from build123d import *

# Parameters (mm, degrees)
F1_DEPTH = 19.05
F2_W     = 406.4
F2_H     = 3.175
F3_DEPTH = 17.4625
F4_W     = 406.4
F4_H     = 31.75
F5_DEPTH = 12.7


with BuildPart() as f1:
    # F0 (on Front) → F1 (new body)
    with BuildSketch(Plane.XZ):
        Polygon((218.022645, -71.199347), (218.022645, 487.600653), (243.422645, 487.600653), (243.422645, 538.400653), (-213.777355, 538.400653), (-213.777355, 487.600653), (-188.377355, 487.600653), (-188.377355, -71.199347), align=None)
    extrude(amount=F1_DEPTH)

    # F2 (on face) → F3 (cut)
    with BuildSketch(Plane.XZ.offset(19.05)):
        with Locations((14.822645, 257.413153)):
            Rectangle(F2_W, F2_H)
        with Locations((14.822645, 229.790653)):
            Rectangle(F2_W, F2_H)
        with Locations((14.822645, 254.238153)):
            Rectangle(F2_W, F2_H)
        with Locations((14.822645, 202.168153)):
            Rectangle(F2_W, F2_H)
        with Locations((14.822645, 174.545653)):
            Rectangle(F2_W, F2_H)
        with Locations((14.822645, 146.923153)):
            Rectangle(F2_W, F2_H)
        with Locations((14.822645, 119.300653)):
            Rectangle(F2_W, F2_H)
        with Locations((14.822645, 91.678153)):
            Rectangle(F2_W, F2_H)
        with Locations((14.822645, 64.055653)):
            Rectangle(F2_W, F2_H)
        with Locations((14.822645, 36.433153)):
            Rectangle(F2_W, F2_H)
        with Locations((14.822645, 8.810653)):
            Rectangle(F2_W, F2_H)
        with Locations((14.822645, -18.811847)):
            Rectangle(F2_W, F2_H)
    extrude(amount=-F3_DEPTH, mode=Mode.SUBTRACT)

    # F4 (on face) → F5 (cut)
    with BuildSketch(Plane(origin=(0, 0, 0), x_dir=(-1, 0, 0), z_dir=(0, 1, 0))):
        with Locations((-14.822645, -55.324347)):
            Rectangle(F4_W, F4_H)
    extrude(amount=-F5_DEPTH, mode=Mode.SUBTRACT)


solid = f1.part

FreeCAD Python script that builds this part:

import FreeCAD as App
import Part
import Sketcher
Q = App.Units.Quantity

doc = App.newDocument("Part")
body = doc.addObject("PartDesign::Body", "Body")

# Sketch on XZ plane
sketch1 = doc.addObject("Sketcher::SketchObject", "Sketch")
body.addObject(sketch1)
sketch1.AttachmentSupport = (doc.XZ_Plane, [""])
sketch1.MapMode = "FlatFace"
sketch1.addGeometry([
    Part.LineSegment(App.Vector(218, -71, 0), App.Vector(218, 488, 0)),  # 0
    Part.LineSegment(App.Vector(218, 488, 0), App.Vector(243, 488, 0)),  # 1
    Part.LineSegment(App.Vector(243, 488, 0), App.Vector(243, 538, 0)),  # 2
    Part.LineSegment(App.Vector(243, 538, 0), App.Vector(-214, 538, 0)),  # 3
    Part.LineSegment(App.Vector(-214, 538, 0), App.Vector(-214, 488, 0)),  # 4
    Part.LineSegment(App.Vector(-214, 488, 0), App.Vector(-188, 488, 0)),  # 5
    Part.LineSegment(App.Vector(-188, 488, 0), App.Vector(-188, -71, 0)),  # 6
    Part.LineSegment(App.Vector(-188, -71, 0), App.Vector(218, -71, 0)),  # 7
], False)
sketch1.addConstraint([
    Sketcher.Constraint("Coincident", 0, 2, 1, 1),
    Sketcher.Constraint("Coincident", 1, 2, 2, 1),
    Sketcher.Constraint("Coincident", 2, 2, 3, 1),
    Sketcher.Constraint("Coincident", 3, 2, 4, 1),
    Sketcher.Constraint("Coincident", 4, 2, 5, 1),
    Sketcher.Constraint("Coincident", 5, 2, 6, 1),
    Sketcher.Constraint("Coincident", 6, 2, 7, 1),
    Sketcher.Constraint("Coincident", 7, 2, 0, 1),
    Sketcher.Constraint("Vertical", 0),
    Sketcher.Constraint("Horizontal", 1),
    Sketcher.Constraint("Vertical", 2),
    Sketcher.Constraint("Horizontal", 3),
    Sketcher.Constraint("Vertical", 4),
    Sketcher.Constraint("Horizontal", 5),
    Sketcher.Constraint("Vertical", 6),
    Sketcher.Constraint("Horizontal", 7),
    Sketcher.Constraint("Horizontal", 1, 2, 4, 2),
    Sketcher.Constraint("Equal", 1, 5),
    Sketcher.Constraint("DistanceX", 1, 1, 1, 2, Q("1 in")),
    Sketcher.Constraint("DistanceX", 3, 2, 3, 1, Q("18 in")),
    Sketcher.Constraint("DistanceY", 0, 1, 0, 2, Q("22 in")),
    Sketcher.Constraint("DistanceY", 2, 1, 2, 2, Q("2 in")),
    Sketcher.Constraint("DistanceX", -1, 1, 0, 2, Q("218.022645 mm")),
    Sketcher.Constraint("DistanceY", -1, 1, 0, 2, Q("487.600653 mm")),
])
pad1 = doc.addObject("PartDesign::Pad", "Pad")
body.addObject(pad1)
pad1.Profile = sketch1
pad1.Length = Q("0.75 in")

# Sketch on XZ plane
sketch2 = doc.addObject("Sketcher::SketchObject", "Sketch001")
body.addObject(sketch2)
sketch2.AttachmentSupport = (doc.XZ_Plane, [""])
sketch2.MapMode = "FlatFace"
sketch2.AttachmentOffset = App.Placement(App.Vector(0, 0, 0.75 * 25.4), App.Rotation())
sketch2.addGeometry([
    Part.LineSegment(App.Vector(-188.4, 259, 0), App.Vector(-188.4, 252.7, 0)),  # 0
    Part.LineSegment(App.Vector(-188.4, 252.7, 0), App.Vector(218, 252.7, 0)),  # 1
    Part.LineSegment(App.Vector(218, 252.7, 0), App.Vector(218, 259, 0)),  # 2
    Part.LineSegment(App.Vector(218, 259, 0), App.Vector(-188.4, 259, 0)),  # 3
    Part.LineSegment(App.Vector(-188.4, 231.4, 0), App.Vector(-188.4, 228.2, 0)),  # 4
    Part.LineSegment(App.Vector(-188.4, 228.2, 0), App.Vector(218, 228.2, 0)),  # 5
    Part.LineSegment(App.Vector(218, 228.2, 0), App.Vector(218, 231.4, 0)),  # 6
    Part.LineSegment(App.Vector(218, 231.4, 0), App.Vector(-188.4, 231.4, 0)),  # 7
    Part.LineSegment(App.Vector(-188.4, 203.8, 0), App.Vector(-188.4, 200.6, 0)),  # 8
    Part.LineSegment(App.Vector(-188.4, 200.6, 0), App.Vector(218, 200.6, 0)),  # 9
    Part.LineSegment(App.Vector(218, 200.6, 0), App.Vector(218, 203.8, 0)),  # 10
    Part.LineSegment(App.Vector(218, 203.8, 0), App.Vector(-188.4, 203.8, 0)),  # 11
    Part.LineSegment(App.Vector(-188.4, 176.1, 0), App.Vector(-188.4, 173, 0)),  # 12
    Part.LineSegment(App.Vector(-188.4, 173, 0), App.Vector(218, 173, 0)),  # 13
    Part.LineSegment(App.Vector(218, 173, 0), App.Vector(218, 176.1, 0)),  # 14
    Part.LineSegment(App.Vector(218, 176.1, 0), App.Vector(-188.4, 176.1, 0)),  # 15
    Part.LineSegment(App.Vector(-188.4, 148.5, 0), App.Vector(-188.4, 145.3, 0)),  # 16
    Part.LineSegment(App.Vector(-188.4, 145.3, 0), App.Vector(218, 145.3, 0)),  # 17
    Part.LineSegment(App.Vector(218, 145.3, 0), App.Vector(218, 148.5, 0)),  # 18
    Part.LineSegment(App.Vector(218, 148.5, 0), App.Vector(-188.4, 148.5, 0)),  # 19
    Part.LineSegment(App.Vector(-188.4, 120.9, 0), App.Vector(-188.4, 117.7, 0)),  # 20
    Part.LineSegment(App.Vector(-188.4, 117.7, 0), App.Vector(218, 117.7, 0)),  # 21
    Part.LineSegment(App.Vector(218, 117.7, 0), App.Vector(218, 120.9, 0)),  # 22
    Part.LineSegment(App.Vector(218, 120.9, 0), App.Vector(-188.4, 120.9, 0)),  # 23
    Part.LineSegment(App.Vector(-188.4, 93.3, 0), App.Vector(-188.4, 90.1, 0)),  # 24
    Part.LineSegment(App.Vector(-188.4, 90.1, 0), App.Vector(218, 90.1, 0)),  # 25
    Part.LineSegment(App.Vector(218, 90.1, 0), App.Vector(218, 93.3, 0)),  # 26
    Part.LineSegment(App.Vector(218, 93.3, 0), App.Vector(-188.4, 93.3, 0)),  # 27
    Part.LineSegment(App.Vector(-188.4, 65.6, 0), App.Vector(-188.4, 62.5, 0)),  # 28
    Part.LineSegment(App.Vector(-188.4, 62.5, 0), App.Vector(218, 62.5, 0)),  # 29
    Part.LineSegment(App.Vector(218, 62.5, 0), App.Vector(218, 65.6, 0)),  # 30
    Part.LineSegment(App.Vector(218, 65.6, 0), App.Vector(-188.4, 65.6, 0)),  # 31
    Part.LineSegment(App.Vector(-188.4, 38, 0), App.Vector(-188.4, 34.8, 0)),  # 32
    Part.LineSegment(App.Vector(-188.4, 34.8, 0), App.Vector(218, 34.8, 0)),  # 33
    Part.LineSegment(App.Vector(218, 34.8, 0), App.Vector(218, 38, 0)),  # 34
    Part.LineSegment(App.Vector(218, 38, 0), App.Vector(-188.4, 38, 0)),  # 35
    Part.LineSegment(App.Vector(-188.4, 10.4, 0), App.Vector(-188.4, 7.2, 0)),  # 36
    Part.LineSegment(App.Vector(-188.4, 7.2, 0), App.Vector(218, 7.2, 0)),  # 37
    Part.LineSegment(App.Vector(218, 7.2, 0), App.Vector(218, 10.4, 0)),  # 38
    Part.LineSegment(App.Vector(218, 10.4, 0), App.Vector(-188.4, 10.4, 0)),  # 39
    Part.LineSegment(App.Vector(-188.4, -17.2, 0), App.Vector(-188.4, -20.4, 0)),  # 40
    Part.LineSegment(App.Vector(-188.4, -20.4, 0), App.Vector(218, -20.4, 0)),  # 41
    Part.LineSegment(App.Vector(218, -20.4, 0), App.Vector(218, -17.2, 0)),  # 42
    Part.LineSegment(App.Vector(218, -17.2, 0), App.Vector(-188.4, -17.2, 0)),  # 43
], False)
sketch2.addConstraint([
    Sketcher.Constraint("Coincident", 0, 2, 1, 1),
    Sketcher.Constraint("Coincident", 1, 2, 2, 1),
    Sketcher.Constraint("Coincident", 2, 2, 3, 1),
    Sketcher.Constraint("Coincident", 3, 2, 0, 1),
    Sketcher.Constraint("Coincident", 4, 2, 5, 1),
    Sketcher.Constraint("Coincident", 5, 2, 6, 1),
    Sketcher.Constraint("Coincident", 6, 2, 7, 1),
    Sketcher.Constraint("Coincident", 7, 2, 4, 1),
    Sketcher.Constraint("Coincident", 8, 2, 9, 1),
    Sketcher.Constraint("Coincident", 9, 2, 10, 1),
    Sketcher.Constraint("Coincident", 10, 2, 11, 1),
    Sketcher.Constraint("Coincident", 11, 2, 8, 1),
    Sketcher.Constraint("Coincident", 12, 2, 13, 1),
    Sketcher.Constraint("Coincident", 13, 2, 14, 1),
    Sketcher.Constraint("Coincident", 14, 2, 15, 1),
    Sketcher.Constraint("Coincident", 15, 2, 12, 1),
    Sketcher.Constraint("Coincident", 16, 2, 17, 1),
    Sketcher.Constraint("Coincident", 17, 2, 18, 1),
    Sketcher.Constraint("Coincident", 18, 2, 19, 1),
    Sketcher.Constraint("Coincident", 19, 2, 16, 1),
    Sketcher.Constraint("Coincident", 20, 2, 21, 1),
    Sketcher.Constraint("Coincident", 21, 2, 22, 1),
    Sketcher.Constraint("Coincident", 22, 2, 23, 1),
    Sketcher.Constraint("Coincident", 23, 2, 20, 1),
    Sketcher.Constraint("Coincident", 24, 2, 25, 1),
    Sketcher.Constraint("Coincident", 25, 2, 26, 1),
    Sketcher.Constraint("Coincident", 26, 2, 27, 1),
    Sketcher.Constraint("Coincident", 27, 2, 24, 1),
    Sketcher.Constraint("Coincident", 28, 2, 29, 1),
    Sketcher.Constraint("Coincident", 29, 2, 30, 1),
    Sketcher.Constraint("Coincident", 30, 2, 31, 1),
    Sketcher.Constraint("Coincident", 31, 2, 28, 1),
    Sketcher.Constraint("Coincident", 32, 2, 33, 1),
    Sketcher.Constraint("Coincident", 33, 2, 34, 1),
    Sketcher.Constraint("Coincident", 34, 2, 35, 1),
    Sketcher.Constraint("Coincident", 35, 2, 32, 1),
    Sketcher.Constraint("Coincident", 36, 2, 37, 1),
    Sketcher.Constraint("Coincident", 37, 2, 38, 1),
    Sketcher.Constraint("Coincident", 38, 2, 39, 1),
    Sketcher.Constraint("Coincident", 39, 2, 36, 1),
    Sketcher.Constraint("Coincident", 40, 2, 41, 1),
    Sketcher.Constraint("Coincident", 41, 2, 42, 1),
    Sketcher.Constraint("Coincident", 42, 2, 43, 1),
    Sketcher.Constraint("Coincident", 43, 2, 40, 1),
    Sketcher.Constraint("Vertical", 0),
    Sketcher.Constraint("Horizontal", 1),
    Sketcher.Constraint("Vertical", 2),
    Sketcher.Constraint("Horizontal", 3),
    Sketcher.Constraint("Vertical", 4),
    Sketcher.Constraint("Horizontal", 5),
    Sketcher.Constraint("Vertical", 6),
    Sketcher.Constraint("Horizontal", 7),
    Sketcher.Constraint("Vertical", 8),
    Sketcher.Constraint("Horizontal", 9),
    Sketcher.Constraint("Vertical", 10),
    Sketcher.Constraint("Horizontal", 11),
    Sketcher.Constraint("Vertical", 12),
    Sketcher.Constraint("Horizontal", 13),
    Sketcher.Constraint("Vertical", 14),
    Sketcher.Constraint("Horizontal", 15),
    Sketcher.Constraint("Vertical", 16),
    Sketcher.Constraint("Horizontal", 17),
    Sketcher.Constraint("Vertical", 18),
    Sketcher.Constraint("Horizontal", 19),
    Sketcher.Constraint("Vertical", 20),
    Sketcher.Constraint("Horizontal", 21),
    Sketcher.Constraint("Vertical", 22),
    Sketcher.Constraint("Horizontal", 23),
    Sketcher.Constraint("Vertical", 24),
    Sketcher.Constraint("Horizontal", 25),
    Sketcher.Constraint("Vertical", 26),
    Sketcher.Constraint("Horizontal", 27),
    Sketcher.Constraint("Vertical", 28),
    Sketcher.Constraint("Horizontal", 29),
    Sketcher.Constraint("Vertical", 30),
    Sketcher.Constraint("Horizontal", 31),
    Sketcher.Constraint("Vertical", 32),
    Sketcher.Constraint("Horizontal", 33),
    Sketcher.Constraint("Vertical", 34),
    Sketcher.Constraint("Horizontal", 35),
    Sketcher.Constraint("Vertical", 36),
    Sketcher.Constraint("Horizontal", 37),
    Sketcher.Constraint("Vertical", 38),
    Sketcher.Constraint("Horizontal", 39),
    Sketcher.Constraint("Vertical", 40),
    Sketcher.Constraint("Horizontal", 41),
    Sketcher.Constraint("Vertical", 42),
    Sketcher.Constraint("Horizontal", 43),
    Sketcher.Constraint("Vertical", 3, 2, 4, 2),
    Sketcher.Constraint("Vertical", 2, 2, 5, 2),
    Sketcher.Constraint("Vertical", 7, 2, 8, 2),
    Sketcher.Constraint("Vertical", 6, 2, 9, 2),
    Sketcher.Constraint("Vertical", 11, 2, 12, 2),
    Sketcher.Constraint("Vertical", 10, 2, 13, 2),
    Sketcher.Constraint("Vertical", 15, 2, 16, 2),
    Sketcher.Constraint("Vertical", 14, 2, 17, 2),
    Sketcher.Constraint("Vertical", 19, 2, 20, 2),
    Sketcher.Constraint("Vertical", 18, 2, 21, 2),
    Sketcher.Constraint("Vertical", 23, 2, 24, 2),
    Sketcher.Constraint("Vertical", 22, 2, 25, 2),
    Sketcher.Constraint("Vertical", 27, 2, 28, 2),
    Sketcher.Constraint("Vertical", 26, 2, 29, 2),
    Sketcher.Constraint("Vertical", 31, 2, 32, 2),
    Sketcher.Constraint("Vertical", 30, 2, 33, 2),
    Sketcher.Constraint("Vertical", 35, 2, 36, 2),
    Sketcher.Constraint("Vertical", 34, 2, 37, 2),
    Sketcher.Constraint("Vertical", 39, 2, 40, 2),
    Sketcher.Constraint("Vertical", 38, 2, 41, 2),
    Sketcher.Constraint("Equal", 6, 8),
    Sketcher.Constraint("Equal", 10, 12),
    Sketcher.Constraint("Equal", 14, 16),
    Sketcher.Constraint("Equal", 18, 20),
    Sketcher.Constraint("Equal", 22, 24),
    Sketcher.Constraint("Equal", 26, 28),
    Sketcher.Constraint("Equal", 30, 32),
    Sketcher.Constraint("Equal", 34, 36),
    Sketcher.Constraint("Equal", 38, 40),
    Sketcher.Constraint("DistanceX", 1, 1, 1, 2, Q("16 in")),
    Sketcher.Constraint("DistanceY", 0, 2, 0, 1, Q("0.25 in")),
    Sketcher.Constraint("DistanceY", 8, 2, 3, 2, Q("2.3 in")),
    Sketcher.Constraint("DistanceY", 12, 2, 7, 2, Q("2.3 in")),
    Sketcher.Constraint("DistanceY", 16, 2, 11, 2, Q("2.3 in")),
    Sketcher.Constraint("DistanceY", 20, 2, 15, 2, Q("2.3 in")),
    Sketcher.Constraint("DistanceY", 24, 2, 19, 2, Q("2.3 in")),
    Sketcher.Constraint("DistanceY", 28, 2, 23, 2, Q("2.3 in")),
    Sketcher.Constraint("DistanceY", 32, 2, 27, 2, Q("2.3 in")),
    Sketcher.Constraint("DistanceY", 36, 2, 31, 2, Q("2.3 in")),
    Sketcher.Constraint("DistanceY", 40, 2, 35, 2, Q("2.3 in")),
    Sketcher.Constraint("DistanceY", 4, 2, 4, 1, Q("0.125 in")),
    Sketcher.Constraint("DistanceY", 4, 2, 0, 2, Q("0.9625 in")),
    Sketcher.Constraint("DistanceX", 0, 2, -1, 1, Q("188.377355 mm")),
    Sketcher.Constraint("DistanceY", -1, 1, 0, 2, Q("252.650653 mm")),
])
pocket1 = doc.addObject("PartDesign::Pocket", "Pocket")
body.addObject(pocket1)
pocket1.Profile = sketch2
pocket1.Length = Q("0.6875 in")

# Sketch on XZ plane
sketch3 = doc.addObject("Sketcher::SketchObject", "Sketch002")
body.addObject(sketch3)
sketch3.AttachmentSupport = (doc.XZ_Plane, [""])
sketch3.MapMode = "FlatFace"
sketch3.addGeometry([
    Part.LineSegment(App.Vector(218, -39, 0), App.Vector(218, -71, 0)),
    Part.LineSegment(App.Vector(218, -71, 0), App.Vector(-188, -71, 0)),
    Part.LineSegment(App.Vector(-188, -71, 0), App.Vector(-188, -39, 0)),
    Part.LineSegment(App.Vector(-188, -39, 0), App.Vector(218, -39, 0)),
], False)
sketch3.addConstraint([
    Sketcher.Constraint("Coincident", 0, 2, 1, 1),
    Sketcher.Constraint("Coincident", 1, 2, 2, 1),
    Sketcher.Constraint("Coincident", 2, 2, 3, 1),
    Sketcher.Constraint("Coincident", 3, 2, 0, 1),
    Sketcher.Constraint("Vertical", 0),
    Sketcher.Constraint("Horizontal", 1),
    Sketcher.Constraint("Vertical", 2),
    Sketcher.Constraint("Horizontal", 3),
    Sketcher.Constraint("DistanceX", 1, 2, 1, 1, Q("16 in")),
    Sketcher.Constraint("DistanceY", 0, 2, 0, 1, Q("1.25 in")),
    Sketcher.Constraint("DistanceX", -1, 1, 0, 2, Q("218.022645 mm")),
    Sketcher.Constraint("DistanceY", 0, 2, -1, 1, Q("71.199347 mm")),
])
pocket2 = doc.addObject("PartDesign::Pocket", "Pocket001")
body.addObject(pocket2)
pocket2.Profile = sketch3
pocket2.Length = Q("0.5 in")
pocket2.Reversed = True

doc.recompute()
